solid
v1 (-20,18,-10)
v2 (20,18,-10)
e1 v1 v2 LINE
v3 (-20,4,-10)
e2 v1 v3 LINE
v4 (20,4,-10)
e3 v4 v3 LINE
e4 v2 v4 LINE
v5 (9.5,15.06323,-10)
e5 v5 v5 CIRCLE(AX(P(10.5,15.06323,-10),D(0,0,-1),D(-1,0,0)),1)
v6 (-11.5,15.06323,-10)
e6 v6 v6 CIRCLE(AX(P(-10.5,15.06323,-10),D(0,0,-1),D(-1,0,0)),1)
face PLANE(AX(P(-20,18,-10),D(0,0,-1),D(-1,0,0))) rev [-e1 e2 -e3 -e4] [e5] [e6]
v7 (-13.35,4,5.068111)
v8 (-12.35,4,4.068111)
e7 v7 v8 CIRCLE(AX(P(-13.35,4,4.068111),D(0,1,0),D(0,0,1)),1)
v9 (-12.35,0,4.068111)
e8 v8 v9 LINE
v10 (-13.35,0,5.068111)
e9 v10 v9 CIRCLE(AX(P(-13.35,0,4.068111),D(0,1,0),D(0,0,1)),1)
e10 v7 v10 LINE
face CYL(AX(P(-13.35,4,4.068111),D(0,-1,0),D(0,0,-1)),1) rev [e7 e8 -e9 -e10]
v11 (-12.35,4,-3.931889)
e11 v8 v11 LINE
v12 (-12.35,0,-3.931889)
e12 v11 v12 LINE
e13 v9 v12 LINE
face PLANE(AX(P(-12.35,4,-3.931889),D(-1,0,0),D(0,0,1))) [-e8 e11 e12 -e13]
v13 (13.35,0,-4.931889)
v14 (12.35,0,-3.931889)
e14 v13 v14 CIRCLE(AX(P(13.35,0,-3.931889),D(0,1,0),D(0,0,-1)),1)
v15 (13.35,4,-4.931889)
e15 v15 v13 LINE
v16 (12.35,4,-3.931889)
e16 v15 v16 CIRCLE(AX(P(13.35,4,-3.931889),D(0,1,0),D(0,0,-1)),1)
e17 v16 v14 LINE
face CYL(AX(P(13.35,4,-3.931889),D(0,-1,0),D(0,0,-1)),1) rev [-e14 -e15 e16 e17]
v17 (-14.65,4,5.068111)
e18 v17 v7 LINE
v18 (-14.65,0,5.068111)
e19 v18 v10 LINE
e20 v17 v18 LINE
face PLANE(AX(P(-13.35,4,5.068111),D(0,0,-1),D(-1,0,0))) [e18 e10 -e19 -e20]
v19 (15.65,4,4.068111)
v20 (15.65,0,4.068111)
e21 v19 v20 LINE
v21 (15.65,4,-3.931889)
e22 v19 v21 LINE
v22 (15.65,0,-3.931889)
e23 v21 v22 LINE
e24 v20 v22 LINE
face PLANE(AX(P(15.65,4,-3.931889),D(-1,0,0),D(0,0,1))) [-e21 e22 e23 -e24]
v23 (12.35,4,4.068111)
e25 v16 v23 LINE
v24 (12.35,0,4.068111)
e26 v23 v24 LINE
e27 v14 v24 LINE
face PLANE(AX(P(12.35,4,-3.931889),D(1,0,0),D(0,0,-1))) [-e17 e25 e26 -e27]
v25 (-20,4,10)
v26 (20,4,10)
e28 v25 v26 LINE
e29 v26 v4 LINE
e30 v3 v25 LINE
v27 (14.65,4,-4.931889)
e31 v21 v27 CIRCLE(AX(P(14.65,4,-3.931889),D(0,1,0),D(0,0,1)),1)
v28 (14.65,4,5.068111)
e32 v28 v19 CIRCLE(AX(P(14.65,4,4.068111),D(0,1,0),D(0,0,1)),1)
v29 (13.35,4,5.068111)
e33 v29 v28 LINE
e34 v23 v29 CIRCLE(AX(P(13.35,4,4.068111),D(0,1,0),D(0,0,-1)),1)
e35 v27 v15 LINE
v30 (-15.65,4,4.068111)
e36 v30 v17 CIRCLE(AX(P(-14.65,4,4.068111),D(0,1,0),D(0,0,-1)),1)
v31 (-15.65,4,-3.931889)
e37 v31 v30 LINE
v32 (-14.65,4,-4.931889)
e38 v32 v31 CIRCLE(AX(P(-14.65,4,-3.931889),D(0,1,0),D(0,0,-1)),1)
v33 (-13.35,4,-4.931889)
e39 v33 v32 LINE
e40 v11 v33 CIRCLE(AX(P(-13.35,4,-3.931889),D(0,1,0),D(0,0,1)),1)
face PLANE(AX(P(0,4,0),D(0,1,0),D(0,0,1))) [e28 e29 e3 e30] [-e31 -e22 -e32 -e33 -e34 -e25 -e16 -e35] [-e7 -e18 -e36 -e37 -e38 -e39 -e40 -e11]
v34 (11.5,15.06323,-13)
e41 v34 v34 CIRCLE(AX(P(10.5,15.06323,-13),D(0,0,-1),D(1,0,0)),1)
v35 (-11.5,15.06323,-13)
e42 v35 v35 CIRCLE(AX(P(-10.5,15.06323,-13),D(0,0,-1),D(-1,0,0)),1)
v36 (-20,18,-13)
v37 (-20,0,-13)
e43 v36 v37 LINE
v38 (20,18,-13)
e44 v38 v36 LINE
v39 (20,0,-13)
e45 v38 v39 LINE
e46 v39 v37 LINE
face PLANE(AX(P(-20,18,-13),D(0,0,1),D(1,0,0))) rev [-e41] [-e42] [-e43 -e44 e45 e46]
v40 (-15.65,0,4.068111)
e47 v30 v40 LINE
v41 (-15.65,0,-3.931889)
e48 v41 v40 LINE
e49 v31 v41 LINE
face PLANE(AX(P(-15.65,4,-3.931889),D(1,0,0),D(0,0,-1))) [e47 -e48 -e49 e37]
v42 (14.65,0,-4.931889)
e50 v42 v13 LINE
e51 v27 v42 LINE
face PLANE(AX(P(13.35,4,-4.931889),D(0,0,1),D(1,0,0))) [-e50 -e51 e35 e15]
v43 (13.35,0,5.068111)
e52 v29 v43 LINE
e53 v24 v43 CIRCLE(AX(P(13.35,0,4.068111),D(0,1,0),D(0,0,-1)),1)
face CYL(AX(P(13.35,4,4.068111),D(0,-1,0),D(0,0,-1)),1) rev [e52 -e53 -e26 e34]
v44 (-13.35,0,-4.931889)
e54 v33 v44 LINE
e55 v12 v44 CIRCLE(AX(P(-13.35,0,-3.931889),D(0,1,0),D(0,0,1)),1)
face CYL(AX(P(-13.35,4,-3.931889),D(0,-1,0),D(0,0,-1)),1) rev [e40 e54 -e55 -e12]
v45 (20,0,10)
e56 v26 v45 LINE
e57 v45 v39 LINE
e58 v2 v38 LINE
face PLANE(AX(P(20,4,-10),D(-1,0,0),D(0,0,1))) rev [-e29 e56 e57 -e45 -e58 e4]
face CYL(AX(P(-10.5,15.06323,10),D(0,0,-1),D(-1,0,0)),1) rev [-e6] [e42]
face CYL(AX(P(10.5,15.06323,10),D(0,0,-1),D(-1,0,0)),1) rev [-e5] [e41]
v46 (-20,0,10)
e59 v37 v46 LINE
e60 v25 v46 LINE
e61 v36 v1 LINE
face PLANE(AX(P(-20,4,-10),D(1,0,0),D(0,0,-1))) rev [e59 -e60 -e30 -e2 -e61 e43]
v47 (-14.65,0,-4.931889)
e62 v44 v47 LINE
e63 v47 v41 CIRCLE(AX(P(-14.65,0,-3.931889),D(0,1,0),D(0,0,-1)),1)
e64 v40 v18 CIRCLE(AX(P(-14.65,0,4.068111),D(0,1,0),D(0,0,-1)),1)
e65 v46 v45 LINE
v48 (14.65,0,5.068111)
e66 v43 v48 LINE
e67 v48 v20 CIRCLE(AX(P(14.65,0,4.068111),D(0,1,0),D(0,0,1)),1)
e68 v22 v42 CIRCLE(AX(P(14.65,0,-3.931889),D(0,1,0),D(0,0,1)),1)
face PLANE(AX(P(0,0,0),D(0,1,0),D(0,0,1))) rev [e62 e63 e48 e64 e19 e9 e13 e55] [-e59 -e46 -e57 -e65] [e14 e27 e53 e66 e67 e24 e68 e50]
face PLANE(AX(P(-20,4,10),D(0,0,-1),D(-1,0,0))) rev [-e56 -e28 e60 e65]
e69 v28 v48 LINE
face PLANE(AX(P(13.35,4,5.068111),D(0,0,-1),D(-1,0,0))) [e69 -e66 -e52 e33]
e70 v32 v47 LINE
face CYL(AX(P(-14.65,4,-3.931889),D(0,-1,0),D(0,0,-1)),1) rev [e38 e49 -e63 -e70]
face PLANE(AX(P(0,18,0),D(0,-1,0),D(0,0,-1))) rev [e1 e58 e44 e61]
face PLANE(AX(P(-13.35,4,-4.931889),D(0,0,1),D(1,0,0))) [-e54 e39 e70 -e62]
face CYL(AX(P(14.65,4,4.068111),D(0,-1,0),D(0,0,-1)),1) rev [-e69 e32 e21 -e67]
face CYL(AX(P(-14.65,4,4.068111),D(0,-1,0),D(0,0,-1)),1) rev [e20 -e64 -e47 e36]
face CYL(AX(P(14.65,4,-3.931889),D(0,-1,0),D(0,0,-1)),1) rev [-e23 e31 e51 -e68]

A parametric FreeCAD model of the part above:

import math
import FreeCAD as App
import Part
import Sketcher
from FreeCAD import Vector


def add_polygon(sketch, points):
    """Adds a closed chain of lines whose ends are joined by coincident constraints."""
    first, n = sketch.GeometryCount, len(points)
    for a, b in zip(points, points[1:] + points[:1]):
        sketch.addGeometry(Part.LineSegment(App.Vector(*a, 0), App.Vector(*b, 0)), False)
    for i in range(n):
        sketch.addConstraint(Sketcher.Constraint("Coincident", first + i, 2, first + (i + 1) % n, 1))

doc = App.newDocument("Part")
body = doc.addObject("PartDesign::Body", "Body")

# Sketch on XZ plane
sketch1 = body.newObject("Sketcher::SketchObject", "Sketch")
sketch1.AttachmentSupport = (doc.getObject("XZ_Plane"), [""])
sketch1.MapMode = "FlatFace"
add_polygon(sketch1, [(-20, -10), (-20, 10), (20, 10), (20, -10)])  # lines 0-3
sketch1.addGeometry(Part.LineSegment(Vector(-15.7, 4.1, 0), Vector(-15.7, -3.9, 0)), False)  # 4
sketch1.addGeometry(Part.ArcOfCircle(Part.Circle(Vector(-14.7, -3.9, 0), Vector(0, 0, 1), 1), math.radians(180), math.radians(270)), False)  # 5
sketch1.addGeometry(Part.LineSegment(Vector(-14.7, -4.9, 0), Vector(-13.3, -4.9, 0)), False)  # 6
sketch1.addGeometry(Part.ArcOfCircle(Part.Circle(Vector(-13.3, -3.9, 0), Vector(0, 0, 1), 1), math.radians(-90), math.radians(0)), False)  # 7
sketch1.addGeometry(Part.LineSegment(Vector(-12.3, -3.9, 0), Vector(-12.3, 4.1, 0)), False)  # 8
sketch1.addGeometry(Part.ArcOfCircle(Part.Circle(Vector(-13.4, 4.1, 0), Vector(0, 0, 1), 1), math.radians(0), math.radians(90)), False)  # 9
sketch1.addGeometry(Part.LineSegment(Vector(-13.3, 5.1, 0), Vector(-14.7, 5.1, 0)), False)  # 10
sketch1.addGeometry(Part.ArcOfCircle(Part.Circle(Vector(-14.6, 4.1, 0), Vector(0, 0, 1), 1), math.radians(90), math.radians(180)), False)  # 11
sketch1.addGeometry(Part.ArcOfCircle(Part.Circle(Vector(13.3, -3.9, 0), Vector(0, 0, 1), 1), math.radians(180), math.radians(270)), False)  # 12
sketch1.addGeometry(Part.LineSegment(Vector(13.3, -4.9, 0), Vector(14.7, -4.9, 0)), False)  # 13
sketch1.addGeometry(Part.ArcOfCircle(Part.Circle(Vector(14.7, -3.9, 0), Vector(0, 0, 1), 1), math.radians(-90), math.radians(0)), False)  # 14
sketch1.addGeometry(Part.LineSegment(Vector(15.7, -3.9, 0), Vector(15.7, 4.1, 0)), False)  # 15
sketch1.addGeometry(Part.ArcOfCircle(Part.Circle(Vector(14.6, 4.1, 0), Vector(0, 0, 1), 1), math.radians(0), math.radians(90)), False)  # 16
sketch1.addGeometry(Part.LineSegment(Vector(14.7, 5.1, 0), Vector(13.3, 5.1, 0)), False)  # 17
sketch1.addGeometry(Part.ArcOfCircle(Part.Circle(Vector(13.4, 4.1, 0), Vector(0, 0, 1), 1), math.radians(90), math.radians(180)), False)  # 18
sketch1.addGeometry(Part.LineSegment(Vector(12.3, 4.1, 0), Vector(12.3, -3.9, 0)), False)  # 19
sketch1.addConstraint(Sketcher.Constraint("Tangent", 4, 2, 5, 1))
sketch1.addConstraint(Sketcher.Constraint("Tangent", 5, 2, 6, 1))
sketch1.addConstraint(Sketcher.Constraint("Tangent", 6, 2, 7, 1))
sketch1.addConstraint(Sketcher.Constraint("Tangent", 7, 2, 8, 1))
sketch1.addConstraint(Sketcher.Constraint("Tangent", 8, 2, 9, 1))
sketch1.addConstraint(Sketcher.Constraint("Tangent", 9, 2, 10, 1))
sketch1.addConstraint(Sketcher.Constraint("Tangent", 10, 2, 11, 1))
sketch1.addConstraint(Sketcher.Constraint("Tangent", 11, 2, 4, 1))
sketch1.addConstraint(Sketcher.Constraint("Tangent", 12, 2, 13, 1))
sketch1.addConstraint(Sketcher.Constraint("Tangent", 13, 2, 14, 1))
sketch1.addConstraint(Sketcher.Constraint("Tangent", 14, 2, 15, 1))
sketch1.addConstraint(Sketcher.Constraint("Tangent", 15, 2, 16, 1))
sketch1.addConstraint(Sketcher.Constraint("Tangent", 16, 2, 17, 1))
sketch1.addConstraint(Sketcher.Constraint("Tangent", 17, 2, 18, 1))
sketch1.addConstraint(Sketcher.Constraint("Tangent", 18, 2, 19, 1))
sketch1.addConstraint(Sketcher.Constraint("Tangent", 19, 2, 12, 1))
sketch1.addConstraint(Sketcher.Constraint("Vertical", 0))
sketch1.addConstraint(Sketcher.Constraint("Horizontal", 1))
sketch1.addConstraint(Sketcher.Constraint("Vertical", 2))
sketch1.addConstraint(Sketcher.Constraint("Horizontal", 3))
sketch1.addConstraint(Sketcher.Constraint("Vertical", 4))
sketch1.addConstraint(Sketcher.Constraint("Horizontal", 6))
sketch1.addConstraint(Sketcher.Constraint("Vertical", 8))
sketch1.addConstraint(Sketcher.Constraint("Horizontal", 10))
sketch1.addConstraint(Sketcher.Constraint("Horizontal", 13))
sketch1.addConstraint(Sketcher.Constraint("Vertical", 15))
sketch1.addConstraint(Sketcher.Constraint("Horizontal", 17))
sketch1.addConstraint(Sketcher.Constraint("Vertical", 19))
sketch1.addConstraint(Sketcher.Constraint("Equal", 5, 7))
sketch1.addConstraint(Sketcher.Constraint("Equal", 7, 9))
sketch1.addConstraint(Sketcher.Constraint("Equal", 9, 11))
sketch1.addConstraint(Sketcher.Constraint("Equal", 11, 12))
sketch1.addConstraint(Sketcher.Constraint("Equal", 12, 14))
sketch1.addConstraint(Sketcher.Constraint("Equal", 14, 16))
sketch1.addConstraint(Sketcher.Constraint("Equal", 16, 18))
sketch1.addConstraint(Sketcher.Constraint("Symmetric", 0, 2, 2, 2, -1, 1))
sketch1.addConstraint(Sketcher.Constraint("Symmetric", 7, 3, 12, 3, -2))
sketch1.addConstraint(Sketcher.Constraint("Symmetric", 11, 3, 16, 3, -2))
sketch1.addConstraint(Sketcher.Constraint("Radius", 5, 1.0))
sketch1.addConstraint(Sketcher.Constraint("DistanceX", 1, 1, 1, 2, 40.0))
sketch1.addConstraint(Sketcher.Constraint("DistanceY", 0, 1, 0, 2, 20.0))
sketch1.addConstraint(Sketcher.Constraint("DistanceY", 4, 2, 4, 1, 8.0))
sketch1.addConstraint(Sketcher.Constraint("DistanceX", 6, 1, 6, 2, 1.3))
sketch1.addConstraint(Sketcher.Constraint("DistanceX", 5, 3, 12, 3, 28.0))
sketch1.addConstraint(Sketcher.Constraint("DistanceY", 5, 3, -1, 1, 3.931889))
pad1 = body.newObject("PartDesign::Pad", "Pad")
pad1.Profile = sketch1
pad1.Length = 4
pad1.Reversed = True

# Sketch on XZ plane
sketch2 = body.newObject("Sketcher::SketchObject", "Sketch001")
sketch2.AttachmentSupport = (doc.getObject("XZ_Plane"), [""])
sketch2.MapMode = "FlatFace"
add_polygon(sketch2, [(-20, -13), (-20, -10), (20, -10), (20, -13)])  # lines 0-3
sketch2.addConstraint(Sketcher.Constraint("Vertical", 0))
sketch2.addConstraint(Sketcher.Constraint("Horizontal", 1))
sketch2.addConstraint(Sketcher.Constraint("Vertical", 2))
sketch2.addConstraint(Sketcher.Constraint("Horizontal", 3))
sketch2.addConstraint(Sketcher.Constraint("DistanceX", 1, 1, 1, 2, 40.0))
sketch2.addConstraint(Sketcher.Constraint("DistanceY", 0, 1, 0, 2, 3.0))
sketch2.addConstraint(Sketcher.Constraint("DistanceX", 0, 2, -1, 1, 20.0))
sketch2.addConstraint(Sketcher.Constraint("DistanceY", 0, 2, -1, 1, 10.0))
pad2 = body.newObject("PartDesign::Pad", "Pad001")
pad2.Profile = sketch2
pad2.Length = 18
pad2.Reversed = True

# Sketch on XY plane
sketch3 = body.newObject("Sketcher::SketchObject", "Sketch002")
sketch3.AttachmentSupport = (doc.getObject("XY_Plane"), [""])
sketch3.MapMode = "FlatFace"
sketch3.AttachmentOffset = App.Placement(Vector(0, 0, -13), App.Rotation())
sketch3.addGeometry(Part.Circle(Vector(-10.5, 15.1, 0), Vector(0, 0, 1), 1), False)
sketch3.addGeometry(Part.Circle(Vector(10.5, 15.1, 0), Vector(0, 0, 1), 1), False)
sketch3.addConstraint(Sketcher.Constraint("Equal", 0, 1))
sketch3.addConstraint(Sketcher.Constraint("Symmetric", 0, 3, 1, 3, -2))
sketch3.addConstraint(Sketcher.Constraint("Diameter", 0, 2.0))
sketch3.addConstraint(Sketcher.Constraint("DistanceX", 0, 3, 1, 3, 21.0))
sketch3.addConstraint(Sketcher.Constraint("DistanceY", -1, 1, 0, 3, 15.06323))
pocket1 = body.newObject("PartDesign::Pocket", "Pocket")
pocket1.Profile = sketch3
pocket1.Type = "ThroughAll"
pocket1.Reversed = True

doc.recompute()
